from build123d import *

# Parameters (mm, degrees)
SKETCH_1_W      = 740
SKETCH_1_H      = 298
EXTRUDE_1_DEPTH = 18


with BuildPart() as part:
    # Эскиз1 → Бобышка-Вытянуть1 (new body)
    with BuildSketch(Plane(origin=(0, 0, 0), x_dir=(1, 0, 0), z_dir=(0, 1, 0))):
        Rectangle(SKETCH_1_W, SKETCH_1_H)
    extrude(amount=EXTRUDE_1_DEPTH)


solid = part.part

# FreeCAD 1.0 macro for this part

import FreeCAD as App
import Part
import Sketcher
from FreeCAD import Vector


def add_polygon(sketch, points):
    """Adds a closed chain of lines whose ends are joined by coincident constraints."""
    first, n = sketch.GeometryCount, len(points)
    for a, b in zip(points, points[1:] + points[:1]):
        sketch.addGeometry(Part.LineSegment(App.Vector(*a, 0), App.Vector(*b, 0)), False)
    for i in range(n):
        sketch.addConstraint(Sketcher.Constraint("Coincident", first + i, 2, first + (i + 1) % n, 1))

doc = App.newDocument("Part")
params = doc.addObject("Spreadsheet::Sheet", "Params")
for row, (alias, value) in enumerate([
    ("sketch1_width", "740 mm"),
    ("sketch1_height", "298 mm"),
    ("pad1_length", "18 mm"),
], start=1):
    params.set(f"A{row}", alias)
    params.set(f"B{row}", "=" + value)
    params.setAlias(f"B{row}", alias)

body = doc.addObject("PartDesign::Body", "Body")

# Sketch on XZ plane
sketch1 = body.newObject("Sketcher::SketchObject", "Sketch")
sketch1.AttachmentSupport = (doc.getObject("XZ_Plane"), [""])
sketch1.MapMode = "FlatFace"
add_polygon(sketch1, [(-370, -149), (-370, 149), (370, 149), (370, -149)])  # lines 0-3
sketch1.addConstraint([
    Sketcher.Constraint("Vertical", 0),
    Sketcher.Constraint("Horizontal", 1),
    Sketcher.Constraint("Vertical", 2),
    Sketcher.Constraint("Horizontal", 3),
    Sketcher.Constraint("Symmetric", 0, 2, 2, 2, -1, 1),
    Sketcher.Constraint("DistanceX", 1, 1, 1, 2, 740.0),
    Sketcher.Constraint("DistanceY", 0, 1, 0, 2, 298.0),
])
sketch1.setExpression("Constraints[9]", "Params.sketch1_width")
sketch1.setExpression("Constraints[10]", "Params.sketch1_height")
pad1 = body.newObject("PartDesign::Pad", "Pad")
pad1.Profile = sketch1
pad1.setExpression("Length", "Params.pad1_length")
pad1.Reversed = True

doc.recompute()
